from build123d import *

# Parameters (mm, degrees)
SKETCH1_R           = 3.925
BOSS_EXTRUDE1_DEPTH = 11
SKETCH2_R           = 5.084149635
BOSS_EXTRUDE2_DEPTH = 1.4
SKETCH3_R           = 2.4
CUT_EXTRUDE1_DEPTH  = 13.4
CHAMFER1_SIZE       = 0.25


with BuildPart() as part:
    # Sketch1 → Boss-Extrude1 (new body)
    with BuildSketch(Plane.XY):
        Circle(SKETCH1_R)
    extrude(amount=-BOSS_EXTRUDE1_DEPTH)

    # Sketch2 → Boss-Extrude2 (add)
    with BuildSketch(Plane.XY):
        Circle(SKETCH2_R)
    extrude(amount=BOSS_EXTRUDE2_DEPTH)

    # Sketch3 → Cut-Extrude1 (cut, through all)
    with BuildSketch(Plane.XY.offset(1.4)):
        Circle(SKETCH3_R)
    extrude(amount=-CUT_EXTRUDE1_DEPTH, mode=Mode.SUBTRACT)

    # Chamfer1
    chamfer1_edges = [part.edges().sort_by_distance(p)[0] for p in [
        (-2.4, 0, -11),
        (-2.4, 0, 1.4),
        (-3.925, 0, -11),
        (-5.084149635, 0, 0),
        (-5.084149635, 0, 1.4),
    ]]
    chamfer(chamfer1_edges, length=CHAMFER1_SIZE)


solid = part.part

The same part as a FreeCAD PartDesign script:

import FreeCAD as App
import Part
import Sketcher
Q = App.Units.Quantity


def edges_at(feature, points):
    """Names of the edges that pass closest to the given points."""
    edges = feature.Shape.Edges
    near = lambda p: min(range(len(edges)), key=lambda i: edges[i].distToShape(Part.Vertex(*p))[0])
    return sorted({f"Edge{near(p) + 1}" for p in points})

doc = App.newDocument("Part")
params = doc.addObject("Spreadsheet::Sheet", "Params")
for row, (alias, value) in enumerate([
    ("sketch1_diameter", "7.85 mm"),
    ("pad1_length", "11 mm"),
    ("pad2_length", "1.4 mm"),
    ("sketch3_diameter", "4.8 mm"),
    ("chamfer_size", "0.25 mm"),
], start=1):
    params.set(f"A{row}", alias)
    params.set(f"B{row}", "=" + value)
    params.setAlias(f"B{row}", alias)

body = doc.addObject("PartDesign::Body", "Body")

# Sketch on XY plane
sketch1 = body.newObject("Sketcher::SketchObject", "Sketch")
sketch1.AttachmentSupport = (doc.getObject("XY_Plane"), [""])
sketch1.MapMode = "FlatFace"
sketch1.addGeometry(Part.Circle(App.Vector(0, 0, 0), App.Vector(0, 0, 1), 3.9), False)
sketch1.addConstraint(Sketcher.Constraint("Coincident", 0, 3, -1, 1))
sketch1.addConstraint(Sketcher.Constraint("Diameter", 0, Q("7.85 mm")))
sketch1.setExpression("Constraints[1]", "Params.sketch1_diameter")
pad1 = body.newObject("PartDesign::Pad", "Pad")
pad1.Profile = sketch1
pad1.setExpression("Length", "Params.pad1_length")
pad1.Reversed = True

# Sketch on XY plane
sketch2 = body.newObject("Sketcher::SketchObject", "Sketch001")
sketch2.AttachmentSupport = (doc.getObject("XY_Plane"), [""])
sketch2.MapMode = "FlatFace"
sketch2.addGeometry(Part.Circle(App.Vector(0, 0, 0), App.Vector(0, 0, 1), 5), False)
sketch2.addConstraint(Sketcher.Constraint("Coincident", 0, 3, -1, 1))
sketch2.addConstraint(Sketcher.Constraint("Diameter", 0, Q("10.168299 mm")))
pad2 = body.newObject("PartDesign::Pad", "Pad001")
pad2.Profile = sketch2
pad2.setExpression("Length", "Params.pad2_length")

# Sketch on XY plane
sketch3 = body.newObject("Sketcher::SketchObject", "Sketch002")
sketch3.AttachmentSupport = (doc.getObject("XY_Plane"), [""])
sketch3.MapMode = "FlatFace"
sketch3.AttachmentOffset = App.Placement(App.Vector(0, 0, 1.4), App.Rotation())
sketch3.addGeometry(Part.Circle(App.Vector(0, 0, 0), App.Vector(0, 0, 1), 2.4), False)
sketch3.addConstraint(Sketcher.Constraint("Coincident", 0, 3, -1, 1))
sketch3.addConstraint(Sketcher.Constraint("Diameter", 0, Q("4.8 mm")))
sketch3.setExpression("Constraints[1]", "Params.sketch3_diameter")
pocket1 = body.newObject("PartDesign::Pocket", "Pocket")
pocket1.Profile = sketch3
pocket1.Type = "ThroughAll"
doc.recompute()

chamfer = body.newObject("PartDesign::Chamfer", "Chamfer")
chamfer.Base = (pocket1, edges_at(pocket1, [
    (-2.4, 0, -11),
    (-2.4, 0, 1.4),
    (-3.925, 0, -11),
    (-5.084, 0, 0),
    (-5.084, 0, 1.4),
]))
chamfer.setExpression("Size", "Params.chamfer_size")

doc.recompute()
